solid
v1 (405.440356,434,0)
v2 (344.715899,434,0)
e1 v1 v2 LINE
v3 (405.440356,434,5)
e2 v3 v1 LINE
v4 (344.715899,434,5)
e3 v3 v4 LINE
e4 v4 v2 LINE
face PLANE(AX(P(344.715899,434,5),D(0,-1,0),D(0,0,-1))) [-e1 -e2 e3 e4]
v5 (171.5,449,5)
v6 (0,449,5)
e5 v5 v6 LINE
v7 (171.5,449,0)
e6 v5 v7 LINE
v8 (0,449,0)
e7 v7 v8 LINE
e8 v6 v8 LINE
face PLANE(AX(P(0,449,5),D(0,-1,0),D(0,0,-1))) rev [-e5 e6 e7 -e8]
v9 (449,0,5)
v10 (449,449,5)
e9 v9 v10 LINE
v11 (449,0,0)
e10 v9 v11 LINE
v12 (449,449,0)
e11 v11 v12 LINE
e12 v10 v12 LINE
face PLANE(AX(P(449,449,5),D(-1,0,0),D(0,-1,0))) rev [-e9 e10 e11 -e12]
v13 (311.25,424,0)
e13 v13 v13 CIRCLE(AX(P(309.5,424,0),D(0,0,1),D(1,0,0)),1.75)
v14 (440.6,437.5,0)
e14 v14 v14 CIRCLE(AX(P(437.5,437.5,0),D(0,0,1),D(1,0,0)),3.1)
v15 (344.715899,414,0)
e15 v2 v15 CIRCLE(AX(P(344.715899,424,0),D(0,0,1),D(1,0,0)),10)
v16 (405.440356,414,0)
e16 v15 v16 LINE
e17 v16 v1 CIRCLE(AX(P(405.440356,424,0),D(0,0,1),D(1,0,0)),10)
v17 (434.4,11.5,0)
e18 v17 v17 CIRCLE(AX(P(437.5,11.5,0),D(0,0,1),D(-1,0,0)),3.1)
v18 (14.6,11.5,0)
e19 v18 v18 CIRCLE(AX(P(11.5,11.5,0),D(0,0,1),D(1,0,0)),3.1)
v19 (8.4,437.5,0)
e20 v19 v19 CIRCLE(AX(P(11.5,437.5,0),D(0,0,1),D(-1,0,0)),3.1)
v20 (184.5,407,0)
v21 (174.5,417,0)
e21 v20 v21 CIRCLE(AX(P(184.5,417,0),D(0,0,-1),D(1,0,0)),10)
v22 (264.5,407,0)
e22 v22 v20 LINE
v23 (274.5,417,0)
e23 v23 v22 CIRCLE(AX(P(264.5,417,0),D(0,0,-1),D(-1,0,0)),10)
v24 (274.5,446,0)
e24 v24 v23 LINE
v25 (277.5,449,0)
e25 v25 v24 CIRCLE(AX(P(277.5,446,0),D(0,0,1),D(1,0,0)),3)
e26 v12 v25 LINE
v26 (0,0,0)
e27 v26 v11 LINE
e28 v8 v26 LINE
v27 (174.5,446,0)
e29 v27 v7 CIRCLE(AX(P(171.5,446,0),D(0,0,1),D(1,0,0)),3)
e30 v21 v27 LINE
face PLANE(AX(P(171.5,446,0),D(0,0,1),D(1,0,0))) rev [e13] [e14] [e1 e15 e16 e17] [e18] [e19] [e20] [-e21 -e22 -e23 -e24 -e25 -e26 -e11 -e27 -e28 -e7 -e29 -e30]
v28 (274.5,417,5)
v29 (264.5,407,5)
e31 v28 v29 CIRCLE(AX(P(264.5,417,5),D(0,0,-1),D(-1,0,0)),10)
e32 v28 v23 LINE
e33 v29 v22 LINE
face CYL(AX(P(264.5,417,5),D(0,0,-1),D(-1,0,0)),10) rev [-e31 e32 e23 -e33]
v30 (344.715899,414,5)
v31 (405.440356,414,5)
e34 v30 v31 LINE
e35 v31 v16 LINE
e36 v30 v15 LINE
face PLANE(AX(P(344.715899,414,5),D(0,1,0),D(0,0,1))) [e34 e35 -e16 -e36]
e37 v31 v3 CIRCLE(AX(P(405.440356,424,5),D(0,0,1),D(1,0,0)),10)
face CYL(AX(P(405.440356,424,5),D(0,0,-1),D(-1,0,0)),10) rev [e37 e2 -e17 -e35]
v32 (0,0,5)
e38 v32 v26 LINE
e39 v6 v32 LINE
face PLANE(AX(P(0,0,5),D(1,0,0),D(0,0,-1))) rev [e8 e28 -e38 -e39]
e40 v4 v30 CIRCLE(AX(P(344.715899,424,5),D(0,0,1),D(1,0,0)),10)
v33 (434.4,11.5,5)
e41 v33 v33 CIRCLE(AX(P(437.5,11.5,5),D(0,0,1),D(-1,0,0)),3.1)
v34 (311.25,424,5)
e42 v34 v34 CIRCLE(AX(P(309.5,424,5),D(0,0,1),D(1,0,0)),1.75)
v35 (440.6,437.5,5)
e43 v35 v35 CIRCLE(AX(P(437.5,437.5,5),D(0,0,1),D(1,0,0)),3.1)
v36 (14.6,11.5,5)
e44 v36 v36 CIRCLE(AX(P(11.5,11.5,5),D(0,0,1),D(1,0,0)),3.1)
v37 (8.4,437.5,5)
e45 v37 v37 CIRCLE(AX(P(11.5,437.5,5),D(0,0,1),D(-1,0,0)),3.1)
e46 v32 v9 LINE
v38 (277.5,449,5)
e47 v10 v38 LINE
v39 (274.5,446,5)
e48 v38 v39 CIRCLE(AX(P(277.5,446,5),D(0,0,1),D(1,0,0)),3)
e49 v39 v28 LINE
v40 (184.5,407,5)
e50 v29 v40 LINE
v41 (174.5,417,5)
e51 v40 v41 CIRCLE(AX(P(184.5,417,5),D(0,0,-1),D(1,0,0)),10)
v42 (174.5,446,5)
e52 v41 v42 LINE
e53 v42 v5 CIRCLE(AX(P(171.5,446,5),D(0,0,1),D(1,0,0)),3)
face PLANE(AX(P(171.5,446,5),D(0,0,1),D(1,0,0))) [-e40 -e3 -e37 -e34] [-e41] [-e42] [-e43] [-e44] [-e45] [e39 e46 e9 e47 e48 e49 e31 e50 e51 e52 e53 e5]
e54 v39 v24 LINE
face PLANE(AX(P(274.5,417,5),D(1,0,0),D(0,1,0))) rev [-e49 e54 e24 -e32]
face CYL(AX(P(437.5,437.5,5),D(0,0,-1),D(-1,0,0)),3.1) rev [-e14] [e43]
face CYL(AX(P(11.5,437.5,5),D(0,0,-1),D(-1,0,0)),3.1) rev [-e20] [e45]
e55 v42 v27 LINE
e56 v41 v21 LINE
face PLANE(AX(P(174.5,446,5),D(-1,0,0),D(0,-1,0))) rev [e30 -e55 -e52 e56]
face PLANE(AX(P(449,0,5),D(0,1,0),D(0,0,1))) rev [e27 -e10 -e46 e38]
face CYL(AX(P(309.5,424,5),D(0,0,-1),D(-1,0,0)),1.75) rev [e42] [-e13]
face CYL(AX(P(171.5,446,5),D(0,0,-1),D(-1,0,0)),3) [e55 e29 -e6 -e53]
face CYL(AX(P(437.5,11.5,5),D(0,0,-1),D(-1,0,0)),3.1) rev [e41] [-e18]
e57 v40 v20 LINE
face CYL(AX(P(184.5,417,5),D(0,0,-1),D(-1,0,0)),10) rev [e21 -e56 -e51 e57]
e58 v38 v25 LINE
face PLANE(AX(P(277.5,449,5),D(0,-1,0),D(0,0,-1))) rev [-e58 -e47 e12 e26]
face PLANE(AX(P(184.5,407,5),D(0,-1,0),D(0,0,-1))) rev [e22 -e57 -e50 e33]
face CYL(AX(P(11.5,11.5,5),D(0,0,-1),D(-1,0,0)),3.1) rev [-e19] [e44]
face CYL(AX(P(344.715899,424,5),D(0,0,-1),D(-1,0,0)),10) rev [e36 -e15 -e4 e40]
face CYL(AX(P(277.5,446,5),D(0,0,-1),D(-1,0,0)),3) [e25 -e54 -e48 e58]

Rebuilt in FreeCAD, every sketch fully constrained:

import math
import FreeCAD as App
import Part
import Sketcher
Q = App.Units.Quantity

doc = App.newDocument("Part")
body = doc.addObject("PartDesign::Body", "Body")

# Sketch on XY plane
sketch1 = body.newObject("Sketcher::SketchObject", "Sketch")
sketch1.AttachmentSupport = (doc.getObject("XY_Plane"), [""])
sketch1.MapMode = "FlatFace"
sketch1.addGeometry(Part.LineSegment(App.Vector(0, 449, 0), App.Vector(0, 0, 0)), False)
sketch1.addGeometry(Part.LineSegment(App.Vector(0, 0, 0), App.Vector(449, 0, 0)), False)
sketch1.addGeometry(Part.LineSegment(App.Vector(449, 0, 0), App.Vector(449, 449, 0)), False)
sketch1.addGeometry(Part.LineSegment(App.Vector(449, 449, 0), App.Vector(277.5, 449, 0)), False)
sketch1.addGeometry(Part.ArcOfCircle(Part.Circle(App.Vector(277.5, 446, 0), App.Vector(0, 0, 1), 3), math.radians(90), math.radians(180)), False)
sketch1.addGeometry(Part.LineSegment(App.Vector(274.5, 446, 0), App.Vector(274.5, 417, 0)), False)
sketch1.addGeometry(Part.ArcOfCircle(Part.Circle(App.Vector(264.5, 417, 0), App.Vector(0, 0, 1), 10), math.radians(-90), math.radians(0)), False)
sketch1.addGeometry(Part.LineSegment(App.Vector(264.5, 407, 0), App.Vector(184.5, 407, 0)), False)
sketch1.addGeometry(Part.ArcOfCircle(Part.Circle(App.Vector(184.5, 417, 0), App.Vector(0, 0, 1), 10), math.radians(180), math.radians(270)), False)
sketch1.addGeometry(Part.LineSegment(App.Vector(174.5, 417, 0), App.Vector(174.5, 446, 0)), False)
sketch1.addGeometry(Part.ArcOfCircle(Part.Circle(App.Vector(171.5, 446, 0), App.Vector(0, 0, 1), 3), math.radians(0), math.radians(90)), False)
sketch1.addGeometry(Part.LineSegment(App.Vector(171.5, 449, 0), App.Vector(0, 449, 0)), False)
sketch1.addGeometry(Part.Circle(App.Vector(437.5, 11.5, 0), App.Vector(0, 0, 1), 3.1), False)
sketch1.addGeometry(Part.Circle(App.Vector(11.5, 11.5, 0), App.Vector(0, 0, 1), 3.1), False)
sketch1.addGeometry(Part.Circle(App.Vector(437.5, 437.5, 0), App.Vector(0, 0, 1), 3.1), False)
sketch1.addGeometry(Part.LineSegment(App.Vector(344.7, 434, 0), App.Vector(405.4, 434, 0)), False)
sketch1.addGeometry(Part.ArcOfCircle(Part.Circle(App.Vector(405.4, 424, 0), App.Vector(0, 0, 1), 10), math.radians(-90), math.radians(90)), False)
sketch1.addGeometry(Part.LineSegment(App.Vector(405.4, 414, 0), App.Vector(344.7, 414, 0)), False)
sketch1.addGeometry(Part.ArcOfCircle(Part.Circle(App.Vector(344.7, 424, 0), App.Vector(0, 0, 1), 10), math.radians(90), math.radians(270)), False)
sketch1.addGeometry(Part.Circle(App.Vector(309.5, 424, 0), App.Vector(0, 0, 1), 1.8), False)
sketch1.addGeometry(Part.Circle(App.Vector(11.5, 437.5, 0), App.Vector(0, 0, 1), 3.1), False)
sketch1.addConstraint(Sketcher.Constraint("Coincident", 0, 2, 1, 1))
sketch1.addConstraint(Sketcher.Constraint("Coincident", 1, 2, 2, 1))
sketch1.addConstraint(Sketcher.Constraint("Coincident", 2, 2, 3, 1))
sketch1.addConstraint(Sketcher.Constraint("Tangent", 3, 2, 4, 1))
sketch1.addConstraint(Sketcher.Constraint("Tangent", 4, 2, 5, 1))
sketch1.addConstraint(Sketcher.Constraint("Tangent", 5, 2, 6, 2))
sketch1.addConstraint(Sketcher.Constraint("Tangent", 6, 1, 7, 1))
sketch1.addConstraint(Sketcher.Constraint("Tangent", 7, 2, 8, 2))
sketch1.addConstraint(Sketcher.Constraint("Tangent", 8, 1, 9, 1))
sketch1.addConstraint(Sketcher.Constraint("Tangent", 9, 2, 10, 1))
sketch1.addConstraint(Sketcher.Constraint("Tangent", 10, 2, 11, 1))
sketch1.addConstraint(Sketcher.Constraint("Coincident", 11, 2, 0, 1))
sketch1.addConstraint(Sketcher.Constraint("Tangent", 15, 2, 16, 2))
sketch1.addConstraint(Sketcher.Constraint("Tangent", 16, 1, 17, 1))
sketch1.addConstraint(Sketcher.Constraint("Tangent", 17, 2, 18, 2))
sketch1.addConstraint(Sketcher.Constraint("Tangent", 18, 1, 15, 1))
sketch1.addConstraint(Sketcher.Constraint("Vertical", 0))
sketch1.addConstraint(Sketcher.Constraint("Horizontal", 1))
sketch1.addConstraint(Sketcher.Constraint("Vertical", 2))
sketch1.addConstraint(Sketcher.Constraint("Horizontal", 3))
sketch1.addConstraint(Sketcher.Constraint("Vertical", 5))
sketch1.addConstraint(Sketcher.Constraint("Horizontal", 7))
sketch1.addConstraint(Sketcher.Constraint("Vertical", 9))
sketch1.addConstraint(Sketcher.Constraint("Horizontal", 11))
sketch1.addConstraint(Sketcher.Constraint("Horizontal", 15))
sketch1.addConstraint(Sketcher.Constraint("Horizontal", 17))
sketch1.addConstraint(Sketcher.Constraint("Coincident", 0, 2, -1, 1))
sketch1.addConstraint(Sketcher.Constraint("Equal", 6, 8))
sketch1.addConstraint(Sketcher.Constraint("Equal", 4, 10))
sketch1.addConstraint(Sketcher.Constraint("Equal", 12, 13))
sketch1.addConstraint(Sketcher.Constraint("Equal", 13, 14))
sketch1.addConstraint(Sketcher.Constraint("Equal", 8, 16))
sketch1.addConstraint(Sketcher.Constraint("Equal", 14, 20))
sketch1.addConstraint(Sketcher.Constraint("Horizontal", 4, 3, 10, 3))
sketch1.addConstraint(Sketcher.Constraint("Horizontal", 12, 3, 13, 3))
sketch1.addConstraint(Sketcher.Constraint("Horizontal", 18, 3, 19, 3))
sketch1.addConstraint(Sketcher.Constraint("Horizontal", 14, 3, 20, 3))
sketch1.addConstraint(Sketcher.Constraint("Vertical", 12, 3, 14, 3))
sketch1.addConstraint(Sketcher.Constraint("Vertical", 13, 3, 20, 3))
sketch1.addConstraint(Sketcher.Constraint("Equal", 3, 11))
sketch1.addConstraint(Sketcher.Constraint("Equal", 1, 0))
sketch1.addConstraint(Sketcher.Constraint("Radius", 4, Q("3 mm")))
sketch1.addConstraint(Sketcher.Constraint("Radius", 6, Q("10 mm")))
sketch1.addConstraint(Sketcher.Constraint("Diameter", 12, Q("6.2 mm")))
sketch1.addConstraint(Sketcher.Constraint("Diameter", 19, Q("3.5 mm")))
sketch1.addConstraint(Sketcher.Constraint("DistanceX", 1, 1, 1, 2, Q("449 mm")))
sketch1.addConstraint(Sketcher.Constraint("DistanceX", 7, 2, 7, 1, Q("80 mm")))
sketch1.addConstraint(Sketcher.Constraint("DistanceY", 5, 2, 5, 1, Q("29 mm")))
sketch1.addConstraint(Sketcher.Constraint("DistanceY", -1, 1, 16, 3, Q("424 mm")))
sketch1.addConstraint(Sketcher.Constraint("DistanceX", 6, 3, 12, 3, Q("173 mm")))
sketch1.addConstraint(Sketcher.Constraint("DistanceX", 13, 3, 12, 3, Q("426 mm")))
sketch1.addConstraint(Sketcher.Constraint("DistanceY", 12, 3, 14, 3, Q("426 mm")))
sketch1.addConstraint(Sketcher.Constraint("DistanceX", 4, 3, 19, 3, Q("32 mm")))
sketch1.addConstraint(Sketcher.Constraint("DistanceY", -1, 1, 12, 3, Q("11.5 mm")))
sketch1.addConstraint(Sketcher.Constraint("DistanceX", -1, 1, 18, 3, Q("344.715899 mm")))
sketch1.addConstraint(Sketcher.Constraint("DistanceX", 15, 1, 15, 2, Q("60.724456 mm")))
pad1 = body.newObject("PartDesign::Pad", "Pad")
pad1.Profile = sketch1
pad1.Length = 5

doc.recompute()
